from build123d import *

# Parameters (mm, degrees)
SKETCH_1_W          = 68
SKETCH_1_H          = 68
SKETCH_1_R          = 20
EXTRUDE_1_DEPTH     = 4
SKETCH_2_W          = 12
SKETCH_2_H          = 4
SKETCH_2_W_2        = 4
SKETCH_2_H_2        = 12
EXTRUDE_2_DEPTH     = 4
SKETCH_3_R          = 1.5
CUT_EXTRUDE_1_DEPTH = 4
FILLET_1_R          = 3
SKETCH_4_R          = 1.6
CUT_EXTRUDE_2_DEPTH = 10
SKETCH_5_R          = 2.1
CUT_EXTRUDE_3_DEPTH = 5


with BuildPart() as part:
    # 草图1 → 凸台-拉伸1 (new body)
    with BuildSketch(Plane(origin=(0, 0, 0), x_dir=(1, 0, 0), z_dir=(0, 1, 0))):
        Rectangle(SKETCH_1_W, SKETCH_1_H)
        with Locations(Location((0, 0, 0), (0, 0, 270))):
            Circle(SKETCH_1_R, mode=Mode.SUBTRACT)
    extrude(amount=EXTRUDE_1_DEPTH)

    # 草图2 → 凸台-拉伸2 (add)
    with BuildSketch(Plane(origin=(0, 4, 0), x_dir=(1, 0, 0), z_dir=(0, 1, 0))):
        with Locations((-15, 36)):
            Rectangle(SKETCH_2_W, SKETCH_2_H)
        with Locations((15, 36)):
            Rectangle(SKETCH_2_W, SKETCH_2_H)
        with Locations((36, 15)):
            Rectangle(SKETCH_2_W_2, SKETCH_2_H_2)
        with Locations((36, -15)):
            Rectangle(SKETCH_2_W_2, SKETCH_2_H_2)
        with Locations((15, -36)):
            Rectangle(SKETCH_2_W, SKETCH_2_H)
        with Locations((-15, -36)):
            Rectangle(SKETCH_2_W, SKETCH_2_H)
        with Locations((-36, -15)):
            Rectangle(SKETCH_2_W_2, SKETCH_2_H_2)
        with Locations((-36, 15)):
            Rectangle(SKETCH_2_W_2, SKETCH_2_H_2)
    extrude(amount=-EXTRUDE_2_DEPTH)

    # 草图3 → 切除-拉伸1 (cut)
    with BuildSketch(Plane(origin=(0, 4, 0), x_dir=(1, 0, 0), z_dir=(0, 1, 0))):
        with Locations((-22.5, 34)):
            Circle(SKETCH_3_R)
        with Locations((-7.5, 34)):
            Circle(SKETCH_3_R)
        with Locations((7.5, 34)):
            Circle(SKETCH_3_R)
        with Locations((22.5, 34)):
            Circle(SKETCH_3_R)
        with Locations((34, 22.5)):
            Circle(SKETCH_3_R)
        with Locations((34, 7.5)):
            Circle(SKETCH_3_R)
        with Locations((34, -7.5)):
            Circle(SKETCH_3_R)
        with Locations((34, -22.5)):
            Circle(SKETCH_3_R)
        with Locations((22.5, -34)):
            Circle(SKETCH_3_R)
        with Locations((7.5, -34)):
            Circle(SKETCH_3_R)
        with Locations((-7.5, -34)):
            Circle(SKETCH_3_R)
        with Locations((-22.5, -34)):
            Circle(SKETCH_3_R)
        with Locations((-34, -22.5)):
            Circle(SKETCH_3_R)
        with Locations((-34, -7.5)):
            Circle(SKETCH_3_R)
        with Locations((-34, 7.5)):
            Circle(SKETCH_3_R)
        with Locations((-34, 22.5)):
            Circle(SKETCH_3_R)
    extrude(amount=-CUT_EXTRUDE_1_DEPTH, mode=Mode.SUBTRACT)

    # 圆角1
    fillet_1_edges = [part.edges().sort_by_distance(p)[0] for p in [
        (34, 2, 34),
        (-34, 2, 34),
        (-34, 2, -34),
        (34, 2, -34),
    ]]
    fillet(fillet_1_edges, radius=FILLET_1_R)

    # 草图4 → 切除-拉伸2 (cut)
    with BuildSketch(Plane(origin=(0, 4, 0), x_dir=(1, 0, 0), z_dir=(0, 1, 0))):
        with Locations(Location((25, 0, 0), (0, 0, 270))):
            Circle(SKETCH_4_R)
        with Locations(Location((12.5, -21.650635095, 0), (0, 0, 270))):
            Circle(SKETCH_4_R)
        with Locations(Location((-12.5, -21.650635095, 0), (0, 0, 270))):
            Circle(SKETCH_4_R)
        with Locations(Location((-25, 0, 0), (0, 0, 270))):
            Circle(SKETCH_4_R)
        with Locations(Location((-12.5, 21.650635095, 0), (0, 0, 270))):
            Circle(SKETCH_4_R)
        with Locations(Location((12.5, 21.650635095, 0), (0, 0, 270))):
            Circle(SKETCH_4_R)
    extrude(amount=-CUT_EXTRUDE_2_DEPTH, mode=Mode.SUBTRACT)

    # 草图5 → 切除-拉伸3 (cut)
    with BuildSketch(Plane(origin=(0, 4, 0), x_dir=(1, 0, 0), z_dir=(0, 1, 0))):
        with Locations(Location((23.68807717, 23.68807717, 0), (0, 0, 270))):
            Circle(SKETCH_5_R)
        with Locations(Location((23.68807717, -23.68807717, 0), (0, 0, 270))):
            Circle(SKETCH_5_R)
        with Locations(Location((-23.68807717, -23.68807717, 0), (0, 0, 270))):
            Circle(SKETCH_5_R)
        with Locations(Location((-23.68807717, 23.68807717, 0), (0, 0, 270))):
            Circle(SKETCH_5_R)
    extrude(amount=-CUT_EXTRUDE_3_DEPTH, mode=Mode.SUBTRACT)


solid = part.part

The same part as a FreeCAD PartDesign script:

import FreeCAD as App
import Part
import Sketcher


def edges_at(feature, points):
    """Names of the edges that pass closest to the given points."""
    edges = feature.Shape.Edges
    near = lambda p: min(range(len(edges)), key=lambda i: edges[i].distToShape(Part.Vertex(*p))[0])
    return sorted({f"Edge{near(p) + 1}" for p in points})


def add_polygon(sketch, points):
    """Adds a closed chain of lines whose ends are joined by coincident constraints."""
    first, n = sketch.GeometryCount, len(points)
    for a, b in zip(points, points[1:] + points[:1]):
        sketch.addGeometry(Part.LineSegment(App.Vector(*a, 0), App.Vector(*b, 0)), False)
    for i in range(n):
        sketch.addConstraint(Sketcher.Constraint("Coincident", first + i, 2, first + (i + 1) % n, 1))

doc = App.newDocument("Part")
body = doc.addObject("PartDesign::Body", "Body")

# Sketch on XZ plane
sketch1 = body.newObject("Sketcher::SketchObject", "Sketch")
sketch1.AttachmentSupport = (doc.getObject("XZ_Plane"), [""])
sketch1.MapMode = "FlatFace"
add_polygon(sketch1, [(-34, -34), (-34, 34), (34, 34), (34, -34)])  # lines 0-3
sketch1.addGeometry(Part.Circle(App.Vector(0, 0, 0), App.Vector(0, 0, 1), 20), False)  # 4
sketch1.addConstraint([
    Sketcher.Constraint("Vertical", 0),
    Sketcher.Constraint("Horizontal", 1),
    Sketcher.Constraint("Vertical", 2),
    Sketcher.Constraint("Horizontal", 3),
    Sketcher.Constraint("Coincident", 4, 3, -1, 1),
    Sketcher.Constraint("Symmetric", 0, 2, 2, 2, -1, 1),
    Sketcher.Constraint("Equal", 3, 0),
    Sketcher.Constraint("Diameter", 4, 40.0),
    Sketcher.Constraint("DistanceX", 1, 1, 1, 2, 68.0),
])
pad1 = body.newObject("PartDesign::Pad", "Pad")
pad1.Profile = sketch1
pad1.Length = 4
pad1.Reversed = True

# Sketch on XZ plane
sketch2 = body.newObject("Sketcher::SketchObject", "Sketch001")
sketch2.AttachmentSupport = (doc.getObject("XZ_Plane"), [""])
sketch2.MapMode = "FlatFace"
sketch2.AttachmentOffset = App.Placement(App.Vector(0, 0, -4), App.Rotation())
add_polygon(sketch2, [(-21, -38), (-21, -34), (-9, -34), (-9, -38)])  # lines 0-3
add_polygon(sketch2, [(9, -38), (9, -34), (21, -34), (21, -38)])  # lines 4-7
add_polygon(sketch2, [(34, -21), (34, -9), (38, -9), (38, -21)])  # lines 8-11
add_polygon(sketch2, [(34, 9), (34, 21), (38, 21), (38, 9)])  # lines 12-15
add_polygon(sketch2, [(9, 34), (9, 38), (21, 38), (21, 34)])  # lines 16-19
add_polygon(sketch2, [(-21, 34), (-21, 38), (-9, 38), (-9, 34)])  # lines 20-23
add_polygon(sketch2, [(-38, 9), (-38, 21), (-34, 21), (-34, 9)])  # lines 24-27
add_polygon(sketch2, [(-38, -21), (-38, -9), (-34, -9), (-34, -21)])  # lines 28-31
sketch2.addConstraint([
    Sketcher.Constraint("Vertical", 0),
    Sketcher.Constraint("Horizontal", 1),
    Sketcher.Constraint("Vertical", 2),
    Sketcher.Constraint("Horizontal", 3),
    Sketcher.Constraint("Vertical", 4),
    Sketcher.Constraint("Horizontal", 5),
    Sketcher.Constraint("Vertical", 6),
    Sketcher.Constraint("Horizontal", 7),
    Sketcher.Constraint("Vertical", 8),
    Sketcher.Constraint("Horizontal", 9),
    Sketcher.Constraint("Vertical", 10),
    Sketcher.Constraint("Horizontal", 11),
    Sketcher.Constraint("Vertical", 12),
    Sketcher.Constraint("Horizontal", 13),
    Sketcher.Constraint("Vertical", 14),
    Sketcher.Constraint("Horizontal", 15),
    Sketcher.Constraint("Vertical", 16),
    Sketcher.Constraint("Horizontal", 17),
    Sketcher.Constraint("Vertical", 18),
    Sketcher.Constraint("Horizontal", 19),
    Sketcher.Constraint("Vertical", 20),
    Sketcher.Constraint("Horizontal", 21),
    Sketcher.Constraint("Vertical", 22),
    Sketcher.Constraint("Horizontal", 23),
    Sketcher.Constraint("Vertical", 24),
    Sketcher.Constraint("Horizontal", 25),
    Sketcher.Constraint("Vertical", 26),
    Sketcher.Constraint("Horizontal", 27),
    Sketcher.Constraint("Vertical", 28),
    Sketcher.Constraint("Horizontal", 29),
    Sketcher.Constraint("Vertical", 30),
    Sketcher.Constraint("Horizontal", 31),
    Sketcher.Constraint("Symmetric", 2, 2, 16, 2, -1, 1),
    Sketcher.Constraint("Symmetric", 0, 2, 18, 2, -1, 1),
    Sketcher.Constraint("Symmetric", 6, 2, 20, 2, -1, 1),
    Sketcher.Constraint("Symmetric", 4, 2, 22, 2, -1, 1),
    Sketcher.Constraint("Symmetric", 10, 2, 24, 2, -1, 1),
    Sketcher.Constraint("Symmetric", 8, 2, 26, 2, -1, 1),
    Sketcher.Constraint("Symmetric", 14, 2, 28, 2, -1, 1),
    Sketcher.Constraint("Symmetric", 12, 2, 30, 2, -1, 1),
    Sketcher.Constraint("Symmetric", 1, 2, 4, 2, -2),
    Sketcher.Constraint("Symmetric", 3, 2, 6, 2, -2),
    Sketcher.Constraint("Symmetric", 13, 2, 24, 2, -2),
    Sketcher.Constraint("Symmetric", 15, 2, 26, 2, -2),
    Sketcher.Constraint("Equal", 31, 0),
    Sketcher.Constraint("Equal", 23, 8),
    Sketcher.Constraint("DistanceX", 1, 1, 1, 2, 12.0),
    Sketcher.Constraint("DistanceX", 9, 1, 9, 2, 4.0),
    Sketcher.Constraint("DistanceX", 0, 2, -1, 1, 21.0),
    Sketcher.Constraint("DistanceY", 0, 2, -1, 1, 34.0),
    Sketcher.Constraint("DistanceX", -1, 1, 8, 2, 34.0),
    Sketcher.Constraint("DistanceY", 8, 2, -1, 1, 9.0),
])
pad2 = body.newObject("PartDesign::Pad", "Pad001")
pad2.Profile = sketch2
pad2.Length = 4

# Sketch on XZ plane
sketch3 = body.newObject("Sketcher::SketchObject", "Sketch002")
sketch3.AttachmentSupport = (doc.getObject("XZ_Plane"), [""])
sketch3.MapMode = "FlatFace"
sketch3.AttachmentOffset = App.Placement(App.Vector(0, 0, -4), App.Rotation())
sketch3.addGeometry([
    Part.Circle(App.Vector(-22.5, -34, 0), App.Vector(0, 0, 1), 1.5),  # 0
    Part.Circle(App.Vector(-7.5, -34, 0), App.Vector(0, 0, 1), 1.5),  # 1
    Part.Circle(App.Vector(7.5, -34, 0), App.Vector(0, 0, 1), 1.5),  # 2
    Part.Circle(App.Vector(22.5, -34, 0), App.Vector(0, 0, 1), 1.5),  # 3
    Part.Circle(App.Vector(34, -22.5, 0), App.Vector(0, 0, 1), 1.5),  # 4
    Part.Circle(App.Vector(34, -7.5, 0), App.Vector(0, 0, 1), 1.5),  # 5
    Part.Circle(App.Vector(34, 7.5, 0), App.Vector(0, 0, 1), 1.5),  # 6
    Part.Circle(App.Vector(34, 22.5, 0), App.Vector(0, 0, 1), 1.5),  # 7
    Part.Circle(App.Vector(22.5, 34, 0), App.Vector(0, 0, 1), 1.5),  # 8
    Part.Circle(App.Vector(7.5, 34, 0), App.Vector(0, 0, 1), 1.5),  # 9
    Part.Circle(App.Vector(-7.5, 34, 0), App.Vector(0, 0, 1), 1.5),  # 10
    Part.Circle(App.Vector(-22.5, 34, 0), App.Vector(0, 0, 1), 1.5),  # 11
    Part.Circle(App.Vector(-34, 22.5, 0), App.Vector(0, 0, 1), 1.5),  # 12
    Part.Circle(App.Vector(-34, 7.5, 0), App.Vector(0, 0, 1), 1.5),  # 13
    Part.Circle(App.Vector(-34, -7.5, 0), App.Vector(0, 0, 1), 1.5),  # 14
    Part.Circle(App.Vector(-34, -22.5, 0), App.Vector(0, 0, 1), 1.5),  # 15
], False)
sketch3.addConstraint([
    Sketcher.Constraint("Equal", 0, 1),
    Sketcher.Constraint("Equal", 1, 2),
    Sketcher.Constraint("Equal", 2, 3),
    Sketcher.Constraint("Equal", 3, 4),
    Sketcher.Constraint("Equal", 4, 5),
    Sketcher.Constraint("Equal", 5, 6),
    Sketcher.Constraint("Equal", 6, 7),
    Sketcher.Constraint("Equal", 7, 8),
    Sketcher.Constraint("Equal", 8, 9),
    Sketcher.Constraint("Equal", 9, 10),
    Sketcher.Constraint("Equal", 10, 11),
    Sketcher.Constraint("Equal", 11, 12),
    Sketcher.Constraint("Equal", 12, 13),
    Sketcher.Constraint("Equal", 13, 14),
    Sketcher.Constraint("Equal", 14, 15),
    Sketcher.Constraint("Symmetric", 0, 3, 8, 3, -1, 1),
    Sketcher.Constraint("Symmetric", 1, 3, 9, 3, -1, 1),
    Sketcher.Constraint("Symmetric", 2, 3, 10, 3, -1, 1),
    Sketcher.Constraint("Symmetric", 3, 3, 11, 3, -1, 1),
    Sketcher.Constraint("Symmetric", 4, 3, 12, 3, -1, 1),
    Sketcher.Constraint("Symmetric", 5, 3, 13, 3, -1, 1),
    Sketcher.Constraint("Symmetric", 6, 3, 14, 3, -1, 1),
    Sketcher.Constraint("Symmetric", 7, 3, 15, 3, -1, 1),
    Sketcher.Constraint("Symmetric", 1, 3, 2, 3, -2),
    Sketcher.Constraint("Symmetric", 0, 3, 3, 3, -2),
    Sketcher.Constraint("Symmetric", 7, 3, 12, 3, -2),
    Sketcher.Constraint("Symmetric", 6, 3, 13, 3, -2),
    Sketcher.Constraint("Horizontal", 0, 3, 1, 3),
    Sketcher.Constraint("Vertical", 4, 3, 5, 3),
    Sketcher.Constraint("Diameter", 0, 3.0),
    Sketcher.Constraint("DistanceY", 0, 3, -1, 1, 34.0),
    Sketcher.Constraint("DistanceX", -1, 1, 4, 3, 34.0),
    Sketcher.Constraint("DistanceX", 0, 3, 1, 3, 15.0),
    Sketcher.Constraint("DistanceX", 1, 3, 2, 3, 15.0),
    Sketcher.Constraint("DistanceY", 4, 3, 5, 3, 15.0),
    Sketcher.Constraint("DistanceY", 5, 3, 6, 3, 15.0),
])
pocket1 = body.newObject("PartDesign::Pocket", "Pocket")
pocket1.Profile = sketch3
pocket1.Length = 4
pocket1.Reversed = True
doc.recompute()

fillet = body.newObject("PartDesign::Fillet", "Fillet")
fillet.Base = (pocket1, edges_at(pocket1, [
    (34, 2, 34),
    (-34, 2, 34),
    (-34, 2, -34),
    (34, 2, -34),
]))
fillet.Radius = 3

# Sketch on XZ plane
sketch4 = body.newObject("Sketcher::SketchObject", "Sketch003")
sketch4.AttachmentSupport = (doc.getObject("XZ_Plane"), [""])
sketch4.MapMode = "FlatFace"
sketch4.AttachmentOffset = App.Placement(App.Vector(0, 0, -4), App.Rotation())
sketch4.addGeometry([
    Part.Circle(App.Vector(25, 0, 0), App.Vector(0, 0, 1), 1.6),  # 0
    Part.Circle(App.Vector(12.5, 21.7, 0), App.Vector(0, 0, 1), 1.6),  # 1
    Part.Circle(App.Vector(-12.5, 21.7, 0), App.Vector(0, 0, 1), 1.6),  # 2
    Part.Circle(App.Vector(-25, 0, 0), App.Vector(0, 0, 1), 1.6),  # 3
    Part.Circle(App.Vector(-12.5, -21.7, 0), App.Vector(0, 0, 1), 1.6),  # 4
    Part.Circle(App.Vector(12.5, -21.7, 0), App.Vector(0, 0, 1), 1.6),  # 5
], False)
sketch4.addConstraint([
    Sketcher.Constraint("Equal", 0, 1),
    Sketcher.Constraint("Equal", 1, 2),
    Sketcher.Constraint("Equal", 2, 3),
    Sketcher.Constraint("Equal", 3, 4),
    Sketcher.Constraint("Equal", 4, 5),
    Sketcher.Constraint("Symmetric", 0, 3, 3, 3, -1, 1),
    Sketcher.Constraint("Symmetric", 1, 3, 4, 3, -1, 1),
    Sketcher.Constraint("Symmetric", 2, 3, 5, 3, -1, 1),
    Sketcher.Constraint("Symmetric", 1, 3, 2, 3, -2),
    Sketcher.Constraint("PointOnObject", 0, 3, -1),
    Sketcher.Constraint("Diameter", 0, 3.2),
    Sketcher.Constraint("DistanceX", -1, 1, 0, 3, 25.0),
    Sketcher.Constraint("DistanceX", 2, 3, 1, 3, 25.0),
    Sketcher.Constraint("DistanceY", 4, 3, 2, 3, 43.30127),
])
pocket2 = body.newObject("PartDesign::Pocket", "Pocket001")
pocket2.Profile = sketch4
pocket2.Length = 10
pocket2.Reversed = True

# Sketch on XZ plane
sketch5 = body.newObject("Sketcher::SketchObject", "Sketch004")
sketch5.AttachmentSupport = (doc.getObject("XZ_Plane"), [""])
sketch5.MapMode = "FlatFace"
sketch5.AttachmentOffset = App.Placement(App.Vector(0, 0, -4), App.Rotation())
sketch5.addGeometry([
    Part.Circle(App.Vector(23.7, -23.7, 0), App.Vector(0, 0, 1), 2.1),
    Part.Circle(App.Vector(23.7, 23.7, 0), App.Vector(0, 0, 1), 2.1),
    Part.Circle(App.Vector(-23.7, 23.7, 0), App.Vector(0, 0, 1), 2.1),
    Part.Circle(App.Vector(-23.7, -23.7, 0), App.Vector(0, 0, 1), 2.1),
], False)
sketch5.addConstraint([
    Sketcher.Constraint("Equal", 0, 1),
    Sketcher.Constraint("Equal", 1, 2),
    Sketcher.Constraint("Equal", 2, 3),
    Sketcher.Constraint("Symmetric", 0, 3, 2, 3, -1, 1),
    Sketcher.Constraint("Symmetric", 1, 3, 3, 3, -1, 1),
    Sketcher.Constraint("Symmetric", 1, 3, 2, 3, -2),
    Sketcher.Constraint("Diameter", 0, 4.2),
    Sketcher.Constraint("DistanceX", -1, 1, 0, 3, 23.688077),
    Sketcher.Constraint("DistanceY", 0, 3, -1, 1, 23.688077),
])
pocket3 = body.newObject("PartDesign::Pocket", "Pocket002")
pocket3.Profile = sketch5
pocket3.Length = 5
pocket3.Reversed = True

doc.recompute()
